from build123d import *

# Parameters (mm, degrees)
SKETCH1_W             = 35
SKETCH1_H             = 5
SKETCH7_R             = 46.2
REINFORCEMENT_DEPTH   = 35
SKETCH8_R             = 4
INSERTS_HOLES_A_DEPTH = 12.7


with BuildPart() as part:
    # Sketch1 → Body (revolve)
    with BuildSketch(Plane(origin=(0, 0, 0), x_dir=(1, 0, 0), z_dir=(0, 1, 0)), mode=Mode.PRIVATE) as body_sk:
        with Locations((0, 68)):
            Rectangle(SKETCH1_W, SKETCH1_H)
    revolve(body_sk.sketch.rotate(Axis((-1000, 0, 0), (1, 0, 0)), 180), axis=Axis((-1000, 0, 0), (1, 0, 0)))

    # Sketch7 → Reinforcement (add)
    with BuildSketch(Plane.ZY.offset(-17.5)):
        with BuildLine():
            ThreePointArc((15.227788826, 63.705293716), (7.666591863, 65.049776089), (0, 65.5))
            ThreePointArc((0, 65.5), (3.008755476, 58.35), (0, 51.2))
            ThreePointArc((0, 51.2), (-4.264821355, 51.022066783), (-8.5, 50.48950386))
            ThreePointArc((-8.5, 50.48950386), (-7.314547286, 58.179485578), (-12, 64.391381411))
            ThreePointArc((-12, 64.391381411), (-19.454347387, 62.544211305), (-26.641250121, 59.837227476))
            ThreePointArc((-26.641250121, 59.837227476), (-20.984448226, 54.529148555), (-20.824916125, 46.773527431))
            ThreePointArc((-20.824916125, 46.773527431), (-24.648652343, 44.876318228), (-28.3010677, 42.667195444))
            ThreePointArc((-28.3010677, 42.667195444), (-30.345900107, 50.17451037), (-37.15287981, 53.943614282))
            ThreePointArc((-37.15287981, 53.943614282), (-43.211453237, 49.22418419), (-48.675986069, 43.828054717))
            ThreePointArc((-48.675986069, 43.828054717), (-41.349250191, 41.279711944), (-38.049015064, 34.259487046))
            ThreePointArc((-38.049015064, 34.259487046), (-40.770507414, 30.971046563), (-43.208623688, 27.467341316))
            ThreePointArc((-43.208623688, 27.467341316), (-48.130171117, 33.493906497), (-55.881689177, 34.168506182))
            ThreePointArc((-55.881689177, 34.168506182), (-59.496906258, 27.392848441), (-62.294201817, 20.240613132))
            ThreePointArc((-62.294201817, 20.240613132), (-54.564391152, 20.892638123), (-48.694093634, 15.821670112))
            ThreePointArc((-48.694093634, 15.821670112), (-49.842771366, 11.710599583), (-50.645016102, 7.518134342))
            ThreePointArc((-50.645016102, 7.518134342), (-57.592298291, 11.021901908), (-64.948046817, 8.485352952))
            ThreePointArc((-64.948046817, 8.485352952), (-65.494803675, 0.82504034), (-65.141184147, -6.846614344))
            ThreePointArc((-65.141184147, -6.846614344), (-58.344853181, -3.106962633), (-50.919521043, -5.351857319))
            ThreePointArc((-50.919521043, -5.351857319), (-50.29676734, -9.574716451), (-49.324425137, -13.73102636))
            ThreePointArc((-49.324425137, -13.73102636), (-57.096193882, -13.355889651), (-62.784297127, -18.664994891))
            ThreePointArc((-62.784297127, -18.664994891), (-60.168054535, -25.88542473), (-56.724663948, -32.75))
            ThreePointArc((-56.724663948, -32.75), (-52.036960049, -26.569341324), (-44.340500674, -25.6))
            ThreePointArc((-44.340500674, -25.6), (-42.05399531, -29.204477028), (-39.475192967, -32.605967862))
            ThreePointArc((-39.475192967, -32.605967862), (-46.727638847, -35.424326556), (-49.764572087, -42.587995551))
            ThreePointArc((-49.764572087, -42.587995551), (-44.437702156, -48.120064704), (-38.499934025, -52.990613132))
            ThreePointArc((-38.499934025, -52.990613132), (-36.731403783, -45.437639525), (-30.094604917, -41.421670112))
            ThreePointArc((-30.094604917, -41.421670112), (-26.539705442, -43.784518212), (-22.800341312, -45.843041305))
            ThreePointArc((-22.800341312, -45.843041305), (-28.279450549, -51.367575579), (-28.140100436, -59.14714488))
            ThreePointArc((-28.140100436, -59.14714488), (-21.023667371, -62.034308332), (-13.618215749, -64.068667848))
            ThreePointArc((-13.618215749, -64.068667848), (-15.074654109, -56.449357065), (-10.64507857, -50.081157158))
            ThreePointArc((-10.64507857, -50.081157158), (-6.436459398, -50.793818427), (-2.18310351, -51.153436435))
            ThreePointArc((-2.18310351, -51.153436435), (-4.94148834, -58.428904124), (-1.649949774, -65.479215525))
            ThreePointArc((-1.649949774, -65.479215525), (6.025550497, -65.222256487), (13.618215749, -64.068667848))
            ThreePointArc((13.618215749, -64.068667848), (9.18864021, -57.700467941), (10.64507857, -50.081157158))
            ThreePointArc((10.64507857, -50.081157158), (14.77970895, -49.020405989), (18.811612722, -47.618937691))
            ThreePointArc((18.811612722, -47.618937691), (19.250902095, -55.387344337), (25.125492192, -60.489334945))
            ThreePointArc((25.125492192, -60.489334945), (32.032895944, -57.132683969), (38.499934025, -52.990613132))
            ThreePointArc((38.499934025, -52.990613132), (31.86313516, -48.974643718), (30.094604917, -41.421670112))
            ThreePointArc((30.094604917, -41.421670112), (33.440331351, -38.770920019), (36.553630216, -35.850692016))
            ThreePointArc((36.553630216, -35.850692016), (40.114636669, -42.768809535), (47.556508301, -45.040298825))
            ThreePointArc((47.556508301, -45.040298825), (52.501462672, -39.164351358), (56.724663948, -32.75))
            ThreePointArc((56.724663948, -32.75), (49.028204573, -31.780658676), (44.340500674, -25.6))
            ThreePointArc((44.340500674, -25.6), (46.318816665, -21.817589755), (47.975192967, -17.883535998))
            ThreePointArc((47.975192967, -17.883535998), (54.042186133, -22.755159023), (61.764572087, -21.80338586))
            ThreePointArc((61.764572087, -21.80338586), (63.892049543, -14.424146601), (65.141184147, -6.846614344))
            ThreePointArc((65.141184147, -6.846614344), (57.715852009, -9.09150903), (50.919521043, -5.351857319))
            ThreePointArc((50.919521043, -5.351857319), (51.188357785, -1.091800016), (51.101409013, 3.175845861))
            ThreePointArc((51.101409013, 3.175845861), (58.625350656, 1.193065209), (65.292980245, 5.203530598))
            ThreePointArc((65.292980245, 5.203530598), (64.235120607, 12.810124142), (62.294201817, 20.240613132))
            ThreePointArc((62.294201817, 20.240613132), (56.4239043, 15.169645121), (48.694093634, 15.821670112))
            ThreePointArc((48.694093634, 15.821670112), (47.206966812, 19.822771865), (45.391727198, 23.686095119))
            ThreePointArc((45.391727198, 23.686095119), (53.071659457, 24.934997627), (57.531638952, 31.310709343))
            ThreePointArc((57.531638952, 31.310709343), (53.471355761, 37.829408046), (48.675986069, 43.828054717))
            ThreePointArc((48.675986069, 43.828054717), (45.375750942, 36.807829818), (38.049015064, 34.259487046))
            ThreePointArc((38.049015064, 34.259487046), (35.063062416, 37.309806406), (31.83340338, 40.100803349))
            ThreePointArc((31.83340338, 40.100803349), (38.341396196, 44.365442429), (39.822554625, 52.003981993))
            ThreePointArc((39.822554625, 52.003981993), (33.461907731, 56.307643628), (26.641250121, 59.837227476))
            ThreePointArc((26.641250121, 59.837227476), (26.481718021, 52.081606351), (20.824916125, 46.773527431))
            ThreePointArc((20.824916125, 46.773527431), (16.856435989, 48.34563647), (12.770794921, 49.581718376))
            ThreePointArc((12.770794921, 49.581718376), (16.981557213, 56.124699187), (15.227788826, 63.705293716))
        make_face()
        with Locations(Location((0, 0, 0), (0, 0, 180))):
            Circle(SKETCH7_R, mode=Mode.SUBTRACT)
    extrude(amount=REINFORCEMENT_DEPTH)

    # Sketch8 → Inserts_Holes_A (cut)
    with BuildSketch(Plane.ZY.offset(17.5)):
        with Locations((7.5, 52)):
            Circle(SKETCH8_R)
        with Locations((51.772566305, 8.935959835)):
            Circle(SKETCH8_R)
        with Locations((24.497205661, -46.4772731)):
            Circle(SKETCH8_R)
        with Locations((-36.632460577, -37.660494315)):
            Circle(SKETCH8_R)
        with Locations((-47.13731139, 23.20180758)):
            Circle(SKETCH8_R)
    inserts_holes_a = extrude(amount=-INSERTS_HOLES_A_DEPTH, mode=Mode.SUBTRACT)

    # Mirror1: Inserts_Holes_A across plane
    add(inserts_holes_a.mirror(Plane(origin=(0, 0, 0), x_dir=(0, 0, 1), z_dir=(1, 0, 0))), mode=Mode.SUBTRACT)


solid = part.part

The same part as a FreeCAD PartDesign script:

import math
import FreeCAD as App
import Part
import Sketcher

V = App.Vector
Q = App.Units.Quantity

doc = App.newDocument("Part")
body = doc.addObject("PartDesign::Body", "Body")

# Sketch on XZ plane
sketch1 = doc.addObject("Sketcher::SketchObject", "Sketch")
body.addObject(sketch1)
sketch1.AttachmentSupport = (doc.XZ_Plane, [""])
sketch1.MapMode = "FlatFace"
sketch1.addGeometry(Part.LineSegment(V(-17.5, -70.5, 0), V(-17.5, -65.5, 0)), False)
sketch1.addGeometry(Part.LineSegment(V(-17.5, -65.5, 0), V(17.5, -65.5, 0)), False)
sketch1.addGeometry(Part.LineSegment(V(17.5, -65.5, 0), V(17.5, -70.5, 0)), False)
sketch1.addGeometry(Part.LineSegment(V(17.5, -70.5, 0), V(-17.5, -70.5, 0)), False)
sketch1.addConstraint(Sketcher.Constraint("Coincident", 0, 2, 1, 1))
sketch1.addConstraint(Sketcher.Constraint("Coincident", 1, 2, 2, 1))
sketch1.addConstraint(Sketcher.Constraint("Coincident", 2, 2, 3, 1))
sketch1.addConstraint(Sketcher.Constraint("Coincident", 3, 2, 0, 1))
sketch1.addConstraint(Sketcher.Constraint("Vertical", 0))
sketch1.addConstraint(Sketcher.Constraint("Horizontal", 1))
sketch1.addConstraint(Sketcher.Constraint("Vertical", 2))
sketch1.addConstraint(Sketcher.Constraint("Horizontal", 3))
sketch1.addConstraint(Sketcher.Constraint("DistanceX", 1, 1, 1, 2, Q("35 mm")))
sketch1.addConstraint(Sketcher.Constraint("DistanceY", 0, 1, 0, 2, Q("5 mm")))
sketch1.addConstraint(Sketcher.Constraint("DistanceX", 0, 2, -1, 1, Q("17.5 mm")))
sketch1.addConstraint(Sketcher.Constraint("DistanceY", 0, 2, -1, 1, Q("65.5 mm")))
revolution = doc.addObject("PartDesign::Revolution", "Revolution")
body.addObject(revolution)
revolution.Profile = sketch1
revolution.ReferenceAxis = (sketch1, ["H_Axis"])
revolution.Angle = 360

# Sketch on YZ plane
sketch2 = doc.addObject("Sketcher::SketchObject", "Sketch001")
body.addObject(sketch2)
sketch2.AttachmentSupport = (doc.YZ_Plane, [""])
sketch2.MapMode = "FlatFace"
sketch2.AttachmentOffset = App.Placement(V(0, 0, 17.5), App.Rotation())
sketch2.addGeometry(Part.ArcOfCircle(Part.Circle(V(0, 0, 0), V(0, 0, 1), 65.5), math.radians(0), math.radians(13.443438)), False)
sketch2.addGeometry(Part.ArcOfCircle(Part.Circle(V(58.35, -6.991245, 0), V(0, 0, 1), 10), math.radians(44.356801), math.radians(135.643199)), False)
sketch2.addGeometry(Part.ArcOfCircle(Part.Circle(V(0, 0, 0), V(0, 0, 1), 51.2), math.radians(-9.556239), math.radians(0)), False)
sketch2.addGeometry(Part.ArcOfCircle(Part.Circle(V(55.738028, -17.011933, 0), V(0, 0, 1), 10), math.radians(30.078977), math.radians(121.658306)), False)
sketch2.addGeometry(Part.ArcOfCircle(Part.Circle(V(0, 0, 0), V(0, 0, 1), 65.5), math.radians(-24), math.radians(-10.556562)), False)
sketch2.addGeometry(Part.ArcOfCircle(Part.Circle(V(50.461782, -30.119903, 0), V(0, 0, 1), 10), math.radians(20.356801), math.radians(111.643199)), False)
sketch2.addGeometry(Part.ArcOfCircle(Part.Circle(V(0, 0, 0), V(0, 0, 1), 51.2), math.radians(-33.556239), math.radians(-24)), False)
sketch2.addGeometry(Part.ArcOfCircle(Part.Circle(V(43.999846, -38.211872, 0), V(0, 0, 1), 10), math.radians(6.078977), math.radians(97.658306)), False)
sketch2.addGeometry(Part.ArcOfCircle(Part.Circle(V(0, 0, 0), V(0, 0, 1), 65.5), math.radians(-48), math.radians(-34.556562)), False)
sketch2.addGeometry(Part.ArcOfCircle(Part.Circle(V(33.848264, -48.040556, 0), V(0, 0, 1), 10), math.radians(-3.643199), math.radians(87.643199)), False)
sketch2.addGeometry(Part.ArcOfCircle(Part.Circle(V(0, 0, 0), V(0, 0, 1), 51.2), math.radians(-57.556239), math.radians(-48)), False)
sketch2.addGeometry(Part.ArcOfCircle(Part.Circle(V(24.653691, -52.804632, 0), V(0, 0, 1), 10), math.radians(-17.921023), math.radians(73.658306)), False)
sketch2.addGeometry(Part.ArcOfCircle(Part.Circle(V(0, 0, 0), V(0, 0, 1), 65.5), math.radians(-72), math.radians(-58.556562)), False)
sketch2.addGeometry(Part.ArcOfCircle(Part.Circle(V(11.382073, -57.654561, 0), V(0, 0, 1), 10), math.radians(-27.643199), math.radians(63.643199)), False)
sketch2.addGeometry(Part.ArcOfCircle(Part.Circle(V(0, 0, 0), V(0, 0, 1), 51.2), math.radians(-81.556239), math.radians(-72)), False)
sketch2.addGeometry(Part.ArcOfCircle(Part.Circle(V(1.044688, -58.266991, 0), V(0, 0, 1), 10), math.radians(-41.921023), math.radians(49.658306)), False)
sketch2.addGeometry(Part.ArcOfCircle(Part.Circle(V(0, 0, 0), V(0, 0, 1), 65.5), math.radians(-96), math.radians(-82.556562)), False)
sketch2.addGeometry(Part.ArcOfCircle(Part.Circle(V(-13.052182, -57.299569, 0), V(0, 0, 1), 10), math.radians(-51.643199), math.radians(39.643199)), False)
sketch2.addGeometry(Part.ArcOfCircle(Part.Circle(V(0, 0, 0), V(0, 0, 1), 51.2), math.radians(-105.556239), math.radians(-96)), False)
sketch2.addGeometry(Part.ArcOfCircle(Part.Circle(V(-22.74495, -53.654458, 0), V(0, 0, 1), 10), math.radians(-65.921023), math.radians(25.658306)), False)
sketch2.addGeometry(Part.ArcOfCircle(Part.Circle(V(0, 0, 0), V(0, 0, 1), 65.5), math.radians(-120), math.radians(-106.556562)), False)
sketch2.addGeometry(Part.ArcOfCircle(Part.Circle(V(-35.229595, -47.03696, 0), V(0, 0, 1), 10), math.radians(-75.643199), math.radians(15.643199)), False)
sketch2.addGeometry(Part.ArcOfCircle(Part.Circle(V(0, 0, 0), V(0, 0, 1), 51.2), math.radians(-129.556239), math.radians(-120)), False)
sketch2.addGeometry(Part.ArcOfCircle(Part.Circle(V(-42.60178, -39.764582, 0), V(0, 0, 1), 10), math.radians(-89.921023), math.radians(1.658306)), False)
sketch2.addGeometry(Part.ArcOfCircle(Part.Circle(V(0, 0, 0), V(0, 0, 1), 65.5), math.radians(-144), math.radians(-130.556562)), False)
sketch2.addGeometry(Part.ArcOfCircle(Part.Circle(V(-51.315492, -28.641234, 0), V(0, 0, 1), 10), math.radians(-99.643199), math.radians(-8.356801)), False)
sketch2.addGeometry(Part.ArcOfCircle(Part.Circle(V(0, 0, 0), V(0, 0, 1), 51.2), math.radians(-153.556239), math.radians(-144)), False)
sketch2.addGeometry(Part.ArcOfCircle(Part.Circle(V(-55.092375, -18.999048, 0), V(0, 0, 1), 10), math.radians(-113.921023), math.radians(-22.341694)), False)
sketch2.addGeometry(Part.ArcOfCircle(Part.Circle(V(0, 0, 0), V(0, 0, 1), 65.5), math.radians(-168), math.radians(-154.556562)), False)
sketch2.addGeometry(Part.ArcOfCircle(Part.Circle(V(-58.528474, -5.293178, 0), V(0, 0, 1), 10), math.radians(-123.643199), math.radians(-32.356801)), False)
sketch2.addGeometry(Part.ArcOfCircle(Part.Circle(V(0, 0, 0), V(0, 0, 1), 51.2), math.radians(-177.556239), math.radians(-168)), False)
sketch2.addGeometry(Part.ArcOfCircle(Part.Circle(V(-58.056998, 5.051594, 0), V(0, 0, 1), 10), math.radians(-137.921023), math.radians(-46.341694)), False)
sketch2.addGeometry(Part.ArcOfCircle(Part.Circle(V(0, 0, 0), V(0, 0, 1), 65.5), math.radians(168), math.radians(181.443438)), False)
sketch2.addGeometry(Part.ArcOfCircle(Part.Circle(V(-55.621351, 18.970116, 0), V(0, 0, 1), 10), math.radians(-147.643199), math.radians(-56.356801)), False)
sketch2.addGeometry(Part.ArcOfCircle(Part.Circle(V(0, 0, 0), V(0, 0, 1), 51.2), math.radians(158.443761), math.radians(168)), False)
sketch2.addGeometry(Part.ArcOfCircle(Part.Circle(V(-50.983038, 28.228769, 0), V(0, 0, 1), 10), math.radians(-161.921023), math.radians(-70.341694)), False)
sketch2.addGeometry(Part.ArcOfCircle(Part.Circle(V(0, 0, 0), V(0, 0, 1), 65.5), math.radians(144), math.radians(157.443438)), False)
sketch2.addGeometry(Part.ArcOfCircle(Part.Circle(V(-43.096791, 39.953305, 0), V(0, 0, 1), 10), math.radians(-171.643199), math.radians(-80.356801)), False)
sketch2.addGeometry(Part.ArcOfCircle(Part.Circle(V(0, 0, 0), V(0, 0, 1), 51.2), math.radians(134.443761), math.radians(144)), False)
sketch2.addGeometry(Part.ArcOfCircle(Part.Circle(V(-35.093648, 46.524933, 0), V(0, 0, 1), 10), math.radians(174.078977), math.radians(265.658306)), False)
sketch2.addGeometry(Part.ArcOfCircle(Part.Circle(V(0, 0, 0), V(0, 0, 1), 65.5), math.radians(120), math.radians(133.443438)), False)
sketch2.addGeometry(Part.ArcOfCircle(Part.Circle(V(-23.120405, 54.028205, 0), V(0, 0, 1), 10), math.radians(164.356801), math.radians(255.643199)), False)
sketch2.addGeometry(Part.ArcOfCircle(Part.Circle(V(0, 0, 0), V(0, 0, 1), 51.2), math.radians(110.443761), math.radians(120)), False)
sketch2.addGeometry(Part.ArcOfCircle(Part.Circle(V(-13.136248, 56.776514, 0), V(0, 0, 1), 10), math.radians(150.078977), math.radians(241.658306)), False)
sketch2.addGeometry(Part.ArcOfCircle(Part.Circle(V(0, 0, 0), V(0, 0, 1), 65.5), math.radians(96), math.radians(109.443438)), False)
sketch2.addGeometry(Part.ArcOfCircle(Part.Circle(V(0.85371, 58.761137, 0), V(0, 0, 1), 10), math.radians(140.356801), math.radians(231.643199)), False)
sketch2.addGeometry(Part.ArcOfCircle(Part.Circle(V(0, 0, 0), V(0, 0, 1), 51.2), math.radians(86.443761), math.radians(96)), False)
sketch2.addGeometry(Part.ArcOfCircle(Part.Circle(V(11.092529, 57.21092, 0), V(0, 0, 1), 10), math.radians(126.078977), math.radians(217.658306)), False)
sketch2.addGeometry(Part.ArcOfCircle(Part.Circle(V(0, 0, 0), V(0, 0, 1), 65.5), math.radians(72), math.radians(85.443438)), False)
sketch2.addGeometry(Part.ArcOfCircle(Part.Circle(V(24.68021, 53.333734, 0), V(0, 0, 1), 10), math.radians(116.356801), math.radians(207.643199)), False)
sketch2.addGeometry(Part.ArcOfCircle(Part.Circle(V(0, 0, 0), V(0, 0, 1), 51.2), math.radians(62.443761), math.radians(72)), False)
sketch2.addGeometry(Part.ArcOfCircle(Part.Circle(V(33.403307, 47.753038, 0), V(0, 0, 1), 10), math.radians(102.078977), math.radians(193.658306)), False)
sketch2.addGeometry(Part.ArcOfCircle(Part.Circle(V(0, 0, 0), V(0, 0, 1), 65.5), math.radians(48), math.radians(61.443438)), False)
sketch2.addGeometry(Part.ArcOfCircle(Part.Circle(V(44.239278, 38.684445, 0), V(0, 0, 1), 10), math.radians(92.356801), math.radians(183.643199)), False)
sketch2.addGeometry(Part.ArcOfCircle(Part.Circle(V(0, 0, 0), V(0, 0, 1), 51.2), math.radians(38.443761), math.radians(48)), False)
sketch2.addGeometry(Part.ArcOfCircle(Part.Circle(V(49.93835, 30.038222, 0), V(0, 0, 1), 10), math.radians(78.078977), math.radians(169.658306)), False)
sketch2.addGeometry(Part.ArcOfCircle(Part.Circle(V(0, 0, 0), V(0, 0, 1), 65.5), math.radians(24), math.radians(37.443438)), False)
sketch2.addGeometry(Part.ArcOfCircle(Part.Circle(V(56.148973, 17.346263, 0), V(0, 0, 1), 10), math.radians(68.356801), math.radians(159.643199)), False)
sketch2.addGeometry(Part.ArcOfCircle(Part.Circle(V(0, 0, 0), V(0, 0, 1), 51.2), math.radians(14.443761), math.radians(24)), False)
sketch2.addGeometry(Part.ArcOfCircle(Part.Circle(V(57.838598, 7.129524, 0), V(0, 0, 1), 10), math.radians(54.078977), math.radians(145.658306)), False)
sketch2.addGeometry(Part.Circle(V(0, 0, 0), V(0, 0, 1), 46.2), False)
sketch2.addConstraint(Sketcher.Constraint("Coincident", 0, 1, 1, 1))
sketch2.addConstraint(Sketcher.Constraint("Coincident", 1, 2, 2, 2))
sketch2.addConstraint(Sketcher.Constraint("Coincident", 2, 1, 3, 2))
sketch2.addConstraint(Sketcher.Constraint("Coincident", 3, 1, 4, 2))
sketch2.addConstraint(Sketcher.Constraint("Coincident", 4, 1, 5, 1))
sketch2.addConstraint(Sketcher.Constraint("Coincident", 5, 2, 6, 2))
sketch2.addConstraint(Sketcher.Constraint("Coincident", 6, 1, 7, 2))
sketch2.addConstraint(Sketcher.Constraint("Coincident", 7, 1, 8, 2))
sketch2.addConstraint(Sketcher.Constraint("Coincident", 8, 1, 9, 1))
sketch2.addConstraint(Sketcher.Constraint("Coincident", 9, 2, 10, 2))
sketch2.addConstraint(Sketcher.Constraint("Coincident", 10, 1, 11, 2))
sketch2.addConstraint(Sketcher.Constraint("Coincident", 11, 1, 12, 2))
sketch2.addConstraint(Sketcher.Constraint("Coincident", 12, 1, 13, 1))
sketch2.addConstraint(Sketcher.Constraint("Coincident", 13, 2, 14, 2))
sketch2.addConstraint(Sketcher.Constraint("Coincident", 14, 1, 15, 2))
sketch2.addConstraint(Sketcher.Constraint("Coincident", 15, 1, 16, 2))
sketch2.addConstraint(Sketcher.Constraint("Coincident", 16, 1, 17, 1))
sketch2.addConstraint(Sketcher.Constraint("Coincident", 17, 2, 18, 2))
sketch2.addConstraint(Sketcher.Constraint("Coincident", 18, 1, 19, 2))
sketch2.addConstraint(Sketcher.Constraint("Coincident", 19, 1, 20, 2))
sketch2.addConstraint(Sketcher.Constraint("Coincident", 20, 1, 21, 1))
sketch2.addConstraint(Sketcher.Constraint("Coincident", 21, 2, 22, 2))
sketch2.addConstraint(Sketcher.Constraint("Coincident", 22, 1, 23, 2))
sketch2.addConstraint(Sketcher.Constraint("Coincident", 23, 1, 24, 2))
sketch2.addConstraint(Sketcher.Constraint("Coincident", 24, 1, 25, 1))
sketch2.addConstraint(Sketcher.Constraint("Coincident", 25, 2, 26, 2))
sketch2.addConstraint(Sketcher.Constraint("Coincident", 26, 1, 27, 2))
sketch2.addConstraint(Sketcher.Constraint("Coincident", 27, 1, 28, 2))
sketch2.addConstraint(Sketcher.Constraint("Coincident", 28, 1, 29, 1))
sketch2.addConstraint(Sketcher.Constraint("Coincident", 29, 2, 30, 2))
sketch2.addConstraint(Sketcher.Constraint("Coincident", 30, 1, 31, 2))
sketch2.addConstraint(Sketcher.Constraint("Coincident", 31, 1, 32, 2))
sketch2.addConstraint(Sketcher.Constraint("Coincident", 32, 1, 33, 1))
sketch2.addConstraint(Sketcher.Constraint("Coincident", 33, 2, 34, 2))
sketch2.addConstraint(Sketcher.Constraint("Coincident", 34, 1, 35, 2))
sketch2.addConstraint(Sketcher.Constraint("Coincident", 35, 1, 36, 2))
sketch2.addConstraint(Sketcher.Constraint("Coincident", 36, 1, 37, 1))
sketch2.addConstraint(Sketcher.Constraint("Coincident", 37, 2, 38, 2))
sketch2.addConstraint(Sketcher.Constraint("Coincident", 38, 1, 39, 2))
sketch2.addConstraint(Sketcher.Constraint("Coincident", 39, 1, 40, 2))
sketch2.addConstraint(Sketcher.Constraint("Coincident", 40, 1, 41, 1))
sketch2.addConstraint(Sketcher.Constraint("Coincident", 41, 2, 42, 2))
sketch2.addConstraint(Sketcher.Constraint("Coincident", 42, 1, 43, 2))
sketch2.addConstraint(Sketcher.Constraint("Coincident", 43, 1, 44, 2))
sketch2.addConstraint(Sketcher.Constraint("Coincident", 44, 1, 45, 1))
sketch2.addConstraint(Sketcher.Constraint("Coincident", 45, 2, 46, 2))
sketch2.addConstraint(Sketcher.Constraint("Coincident", 46, 1, 47, 2))
sketch2.addConstraint(Sketcher.Constraint("Coincident", 47, 1, 48, 2))
sketch2.addConstraint(Sketcher.Constraint("Coincident", 48, 1, 49, 1))
sketch2.addConstraint(Sketcher.Constraint("Coincident", 49, 2, 50, 2))
sketch2.addConstraint(Sketcher.Constraint("Coincident", 50, 1, 51, 2))
sketch2.addConstraint(Sketcher.Constraint("Coincident", 51, 1, 52, 2))
sketch2.addConstraint(Sketcher.Constraint("Coincident", 52, 1, 53, 1))
sketch2.addConstraint(Sketcher.Constraint("Coincident", 53, 2, 54, 2))
sketch2.addConstraint(Sketcher.Constraint("Coincident", 54, 1, 55, 2))
sketch2.addConstraint(Sketcher.Constraint("Coincident", 55, 1, 56, 2))
sketch2.addConstraint(Sketcher.Constraint("Coincident", 56, 1, 57, 1))
sketch2.addConstraint(Sketcher.Constraint("Coincident", 57, 2, 58, 2))
sketch2.addConstraint(Sketcher.Constraint("Coincident", 58, 1, 59, 2))
sketch2.addConstraint(Sketcher.Constraint("Coincident", 59, 1, 0, 2))
sketch2.addConstraint(Sketcher.Constraint("Coincident", 0, 3, -1, 1))
sketch2.addConstraint(Sketcher.Constraint("Coincident", 2, 3, -1, 1))
sketch2.addConstraint(Sketcher.Constraint("Coincident", 4, 3, -1, 1))
sketch2.addConstraint(Sketcher.Constraint("Coincident", 6, 3, -1, 1))
sketch2.addConstraint(Sketcher.Constraint("Coincident", 8, 3, -1, 1))
sketch2.addConstraint(Sketcher.Constraint("Coincident", 10, 3, -1, 1))
sketch2.addConstraint(Sketcher.Constraint("Coincident", 12, 3, -1, 1))
sketch2.addConstraint(Sketcher.Constraint("Coincident", 14, 3, -1, 1))
sketch2.addConstraint(Sketcher.Constraint("Coincident", 16, 3, -1, 1))
sketch2.addConstraint(Sketcher.Constraint("Coincident", 18, 3, -1, 1))
sketch2.addConstraint(Sketcher.Constraint("Coincident", 20, 3, -1, 1))
sketch2.addConstraint(Sketcher.Constraint("Coincident", 22, 3, -1, 1))
sketch2.addConstraint(Sketcher.Constraint("Coincident", 24, 3, -1, 1))
sketch2.addConstraint(Sketcher.Constraint("Coincident", 26, 3, -1, 1))
sketch2.addConstraint(Sketcher.Constraint("Coincident", 28, 3, -1, 1))
sketch2.addConstraint(Sketcher.Constraint("Coincident", 30, 3, -1, 1))
sketch2.addConstraint(Sketcher.Constraint("Coincident", 32, 3, -1, 1))
sketch2.addConstraint(Sketcher.Constraint("Coincident", 34, 3, -1, 1))
sketch2.addConstraint(Sketcher.Constraint("Coincident", 36, 3, -1, 1))
sketch2.addConstraint(Sketcher.Constraint("Coincident", 38, 3, -1, 1))
sketch2.addConstraint(Sketcher.Constraint("Coincident", 40, 3, -1, 1))
sketch2.addConstraint(Sketcher.Constraint("Coincident", 42, 3, -1, 1))
sketch2.addConstraint(Sketcher.Constraint("Coincident", 44, 3, -1, 1))
sketch2.addConstraint(Sketcher.Constraint("Coincident", 46, 3, -1, 1))
sketch2.addConstraint(Sketcher.Constraint("Coincident", 48, 3, -1, 1))
sketch2.addConstraint(Sketcher.Constraint("Coincident", 50, 3, -1, 1))
sketch2.addConstraint(Sketcher.Constraint("Coincident", 52, 3, -1, 1))
sketch2.addConstraint(Sketcher.Constraint("Coincident", 54, 3, -1, 1))
sketch2.addConstraint(Sketcher.Constraint("Coincident", 56, 3, -1, 1))
sketch2.addConstraint(Sketcher.Constraint("Coincident", 58, 3, -1, 1))
sketch2.addConstraint(Sketcher.Constraint("Coincident", 60, 3, -1, 1))
sketch2.addConstraint(Sketcher.Constraint("Equal", 1, 3))
sketch2.addConstraint(Sketcher.Constraint("Equal", 0, 4))
sketch2.addConstraint(Sketcher.Constraint("Equal", 3, 5))
sketch2.addConstraint(Sketcher.Constraint("Equal", 2, 6))
sketch2.addConstraint(Sketcher.Constraint("Equal", 5, 7))
sketch2.addConstraint(Sketcher.Constraint("Equal", 4, 8))
sketch2.addConstraint(Sketcher.Constraint("Equal", 7, 9))
sketch2.addConstraint(Sketcher.Constraint("Equal", 6, 10))
sketch2.addConstraint(Sketcher.Constraint("Equal", 9, 11))
sketch2.addConstraint(Sketcher.Constraint("Equal", 8, 12))
sketch2.addConstraint(Sketcher.Constraint("Equal", 11, 13))
sketch2.addConstraint(Sketcher.Constraint("Equal", 10, 14))
sketch2.addConstraint(Sketcher.Constraint("Equal", 13, 15))
sketch2.addConstraint(Sketcher.Constraint("Equal", 12, 16))
sketch2.addConstraint(Sketcher.Constraint("Equal", 15, 17))
sketch2.addConstraint(Sketcher.Constraint("Equal", 14, 18))
sketch2.addConstraint(Sketcher.Constraint("Equal", 17, 19))
sketch2.addConstraint(Sketcher.Constraint("Equal", 16, 20))
sketch2.addConstraint(Sketcher.Constraint("Equal", 19, 21))
sketch2.addConstraint(Sketcher.Constraint("Equal", 18, 22))
sketch2.addConstraint(Sketcher.Constraint("Equal", 21, 23))
sketch2.addConstraint(Sketcher.Constraint("Equal", 20, 24))
sketch2.addConstraint(Sketcher.Constraint("Equal", 23, 25))
sketch2.addConstraint(Sketcher.Constraint("Equal", 22, 26))
sketch2.addConstraint(Sketcher.Constraint("Equal", 25, 27))
sketch2.addConstraint(Sketcher.Constraint("Equal", 24, 28))
sketch2.addConstraint(Sketcher.Constraint("Equal", 27, 29))
sketch2.addConstraint(Sketcher.Constraint("Equal", 26, 30))
sketch2.addConstraint(Sketcher.Constraint("Equal", 29, 31))
sketch2.addConstraint(Sketcher.Constraint("Equal", 28, 32))
sketch2.addConstraint(Sketcher.Constraint("Equal", 31, 33))
sketch2.addConstraint(Sketcher.Constraint("Equal", 30, 34))
sketch2.addConstraint(Sketcher.Constraint("Equal", 33, 35))
sketch2.addConstraint(Sketcher.Constraint("Equal", 32, 36))
sketch2.addConstraint(Sketcher.Constraint("Equal", 35, 37))
sketch2.addConstraint(Sketcher.Constraint("Equal", 34, 38))
sketch2.addConstraint(Sketcher.Constraint("Equal", 37, 39))
sketch2.addConstraint(Sketcher.Constraint("Equal", 36, 40))
sketch2.addConstraint(Sketcher.Constraint("Equal", 39, 41))
sketch2.addConstraint(Sketcher.Constraint("Equal", 38, 42))
sketch2.addConstraint(Sketcher.Constraint("Equal", 41, 43))
sketch2.addConstraint(Sketcher.Constraint("Equal", 40, 44))
sketch2.addConstraint(Sketcher.Constraint("Equal", 43, 45))
sketch2.addConstraint(Sketcher.Constraint("Equal", 42, 46))
sketch2.addConstraint(Sketcher.Constraint("Equal", 45, 47))
sketch2.addConstraint(Sketcher.Constraint("Equal", 44, 48))
sketch2.addConstraint(Sketcher.Constraint("Equal", 47, 49))
sketch2.addConstraint(Sketcher.Constraint("Equal", 46, 50))
sketch2.addConstraint(Sketcher.Constraint("Equal", 49, 51))
sketch2.addConstraint(Sketcher.Constraint("Equal", 48, 52))
sketch2.addConstraint(Sketcher.Constraint("Equal", 51, 53))
sketch2.addConstraint(Sketcher.Constraint("Equal", 50, 54))
sketch2.addConstraint(Sketcher.Constraint("Equal", 53, 55))
sketch2.addConstraint(Sketcher.Constraint("Equal", 52, 56))
sketch2.addConstraint(Sketcher.Constraint("Equal", 55, 57))
sketch2.addConstraint(Sketcher.Constraint("Equal", 54, 58))
sketch2.addConstraint(Sketcher.Constraint("Equal", 57, 59))
sketch2.addConstraint(Sketcher.Constraint("PointOnObject", 0, 1, -1))
sketch2.addConstraint(Sketcher.Constraint("PointOnObject", 1, 2, -1))
sketch2.addConstraint(Sketcher.Constraint("Vertical", 28, 1, 32, 1))
sketch2.addConstraint(Sketcher.Constraint("Vertical", 29, 2, 33, 2))
sketch2.addConstraint(Sketcher.Constraint("Vertical", 24, 1, 36, 1))
sketch2.addConstraint(Sketcher.Constraint("Vertical", 25, 2, 37, 2))
sketch2.addConstraint(Sketcher.Constraint("Vertical", 20, 1, 40, 1))
sketch2.addConstraint(Sketcher.Constraint("Vertical", 21, 2, 41, 2))
sketch2.addConstraint(Sketcher.Constraint("Vertical", 16, 1, 44, 1))
sketch2.addConstraint(Sketcher.Constraint("Vertical", 17, 2, 45, 2))
sketch2.addConstraint(Sketcher.Constraint("Vertical", 12, 1, 48, 1))
sketch2.addConstraint(Sketcher.Constraint("Vertical", 13, 2, 49, 2))
sketch2.addConstraint(Sketcher.Constraint("Vertical", 8, 1, 52, 1))
sketch2.addConstraint(Sketcher.Constraint("Vertical", 9, 2, 53, 2))
sketch2.addConstraint(Sketcher.Constraint("Vertical", 4, 1, 56, 1))
sketch2.addConstraint(Sketcher.Constraint("Vertical", 5, 2, 57, 2))
sketch2.addConstraint(Sketcher.Constraint("Radius", 1, Q("10 mm")))
sketch2.addConstraint(Sketcher.Constraint("Diameter", 60, Q("92.4 mm")))
sketch2.addConstraint(Sketcher.Constraint("Radius", 0, Q("65.5 mm")))
sketch2.addConstraint(Sketcher.Constraint("Radius", 2, Q("51.2 mm")))
sketch2.addConstraint(Sketcher.Constraint("DistanceY", 3, 1, -1, 1, Q("12 mm")))
sketch2.addConstraint(Sketcher.Constraint("DistanceY", 2, 1, -1, 1, Q("8.5 mm")))
sketch2.addConstraint(Sketcher.Constraint("DistanceX", 21, 2, -1, 1, Q("25.6 mm")))
sketch2.addConstraint(Sketcher.Constraint("DistanceX", 20, 1, -1, 1, Q("32.75 mm")))
sketch2.addConstraint(Sketcher.Constraint("DistanceX", -1, 1, 59, 3, Q("57.838598 mm")))
sketch2.addConstraint(Sketcher.Constraint("DistanceY", 12, 1, -1, 1, Q("62.294202 mm")))
sketch2.addConstraint(Sketcher.Constraint("DistanceY", 27, 1, -1, 1, Q("28.1401 mm")))
sketch2.addConstraint(Sketcher.Constraint("DistanceX", 39, 1, -1, 1, Q("45.040299 mm")))
sketch2.addConstraint(Sketcher.Constraint("DistanceX", -1, 1, 11, 3, Q("24.653691 mm")))
sketch2.addConstraint(Sketcher.Constraint("DistanceY", 11, 3, -1, 1, Q("52.804632 mm")))
sketch2.addConstraint(Sketcher.Constraint("DistanceY", 13, 3, -1, 1, Q("57.654561 mm")))
sketch2.addConstraint(Sketcher.Constraint("DistanceX", -1, 1, 15, 3, Q("1.044688 mm")))
sketch2.addConstraint(Sketcher.Constraint("DistanceY", 15, 3, -1, 1, Q("58.266991 mm")))
sketch2.addConstraint(Sketcher.Constraint("DistanceX", 17, 3, -1, 1, Q("13.052182 mm")))
sketch2.addConstraint(Sketcher.Constraint("DistanceY", 17, 3, -1, 1, Q("57.299569 mm")))
sketch2.addConstraint(Sketcher.Constraint("DistanceX", 19, 3, -1, 1, Q("22.74495 mm")))
sketch2.addConstraint(Sketcher.Constraint("DistanceX", 23, 3, -1, 1, Q("42.60178 mm")))
sketch2.addConstraint(Sketcher.Constraint("DistanceY", 23, 3, -1, 1, Q("39.764582 mm")))
sketch2.addConstraint(Sketcher.Constraint("DistanceY", 27, 3, -1, 1, Q("18.999048 mm")))
sketch2.addConstraint(Sketcher.Constraint("DistanceY", 29, 3, -1, 1, Q("5.293178 mm")))
sketch2.addConstraint(Sketcher.Constraint("DistanceX", 33, 3, -1, 1, Q("55.621351 mm")))
sketch2.addConstraint(Sketcher.Constraint("DistanceX", 35, 3, -1, 1, Q("50.983038 mm")))
sketch2.addConstraint(Sketcher.Constraint("DistanceY", -1, 1, 35, 3, Q("28.228769 mm")))
sketch2.addConstraint(Sketcher.Constraint("DistanceX", 37, 3, -1, 1, Q("43.096791 mm")))
sketch2.addConstraint(Sketcher.Constraint("DistanceX", 39, 3, -1, 1, Q("35.093648 mm")))
sketch2.addConstraint(Sketcher.Constraint("DistanceX", -1, 1, 47, 3, Q("11.092529 mm")))
sketch2.addConstraint(Sketcher.Constraint("DistanceY", -1, 1, 47, 3, Q("57.21092 mm")))
sketch2.addConstraint(Sketcher.Constraint("DistanceY", -1, 1, 51, 3, Q("47.753038 mm")))
sketch2.addConstraint(Sketcher.Constraint("DistanceX", -1, 1, 53, 3, Q("44.239278 mm")))
sketch2.addConstraint(Sketcher.Constraint("DistanceX", -1, 1, 55, 3, Q("49.93835 mm")))
sketch2.addConstraint(Sketcher.Constraint("DistanceY", 4, 1, -1, 1, Q("26.64125 mm")))
sketch2.addConstraint(Sketcher.Constraint("DistanceY", 7, 1, -1, 1, Q("37.15288 mm")))
sketch2.addConstraint(Sketcher.Constraint("DistanceX", 25, 2, -1, 1, Q("41.42167 mm")))
sketch2.addConstraint(Sketcher.Constraint("DistanceY", 31, 1, -1, 1, Q("1.64995 mm")))
sketch2.addConstraint(Sketcher.Constraint("DistanceX", -1, 1, 51, 1, Q("31.310709 mm")))
sketch2.addConstraint(Sketcher.Constraint("DistanceX", -1, 1, 55, 1, Q("52.003982 mm")))
sketch2.addConstraint(Sketcher.Constraint("DistanceX", -1, 1, 58, 1, Q("49.581718 mm")))
sketch2.addConstraint(Sketcher.Constraint("DistanceX", -1, 1, 5, 3, Q("50.461782 mm")))
sketch2.addConstraint(Sketcher.Constraint("DistanceX", -1, 1, 7, 3, Q("43.999846 mm")))
sketch2.addConstraint(Sketcher.Constraint("DistanceX", -1, 1, 9, 3, Q("33.848264 mm")))
sketch2.addConstraint(Sketcher.Constraint("DistanceY", 19, 3, -1, 1, Q("53.654458 mm")))
sketch2.addConstraint(Sketcher.Constraint("DistanceX", 31, 3, -1, 1, Q("58.056998 mm")))
sketch2.addConstraint(Sketcher.Constraint("DistanceX", 43, 3, -1, 1, Q("13.136248 mm")))
sketch2.addConstraint(Sketcher.Constraint("DistanceY", -1, 1, 43, 3, Q("56.776514 mm")))
pad1 = doc.addObject("PartDesign::Pad", "Pad")
body.addObject(pad1)
pad1.Profile = sketch2
pad1.Length = 35
pad1.Reversed = True

# Sketch on YZ plane
sketch3 = doc.addObject("Sketcher::SketchObject", "Sketch002")
body.addObject(sketch3)
sketch3.AttachmentSupport = (doc.YZ_Plane, [""])
sketch3.MapMode = "FlatFace"
sketch3.AttachmentOffset = App.Placement(V(0, 0, -17.5), App.Rotation())
sketch3.addGeometry(Part.Circle(V(52, 7.5, 0), V(0, 0, 1), 4), False)
sketch3.addGeometry(Part.Circle(V(8.93596, 51.772566, 0), V(0, 0, 1), 4), False)
sketch3.addGeometry(Part.Circle(V(-46.477273, 24.497206, 0), V(0, 0, 1), 4), False)
sketch3.addGeometry(Part.Circle(V(-37.660494, -36.632461, 0), V(0, 0, 1), 4), False)
sketch3.addGeometry(Part.Circle(V(23.201808, -47.137311, 0), V(0, 0, 1), 4), False)
sketch3.addConstraint(Sketcher.Constraint("Equal", 0, 1))
sketch3.addConstraint(Sketcher.Constraint("Equal", 1, 2))
sketch3.addConstraint(Sketcher.Constraint("Equal", 2, 3))
sketch3.addConstraint(Sketcher.Constraint("Equal", 3, 4))
sketch3.addConstraint(Sketcher.Constraint("Diameter", 0, Q("8 mm")))
sketch3.addConstraint(Sketcher.Constraint("DistanceX", -1, 1, 0, 3, Q("52 mm")))
sketch3.addConstraint(Sketcher.Constraint("DistanceY", -1, 1, 0, 3, Q("7.5 mm")))
sketch3.addConstraint(Sketcher.Constraint("DistanceX", 3, 3, 4, 3, Q("60.862302 mm")))
sketch3.addConstraint(Sketcher.Constraint("DistanceX", -1, 1, 1, 3, Q("8.93596 mm")))
sketch3.addConstraint(Sketcher.Constraint("DistanceY", 3, 3, -1, 1, Q("36.632461 mm")))
sketch3.addConstraint(Sketcher.Constraint("DistanceY", 4, 3, -1, 1, Q("47.137311 mm")))
sketch3.addConstraint(Sketcher.Constraint("DistanceY", 2, 3, 1, 3, Q("27.275361 mm")))
sketch3.addConstraint(Sketcher.Constraint("DistanceX", 2, 3, 3, 3, Q("8.816779 mm")))
sketch3.addConstraint(Sketcher.Constraint("DistanceY", -1, 1, 1, 3, Q("51.772566 mm")))
sketch3.addConstraint(Sketcher.Constraint("DistanceX", 2, 3, -1, 1, Q("46.477273 mm")))
pocket1 = doc.addObject("PartDesign::Pocket", "Pocket")
body.addObject(pocket1)
pocket1.Profile = sketch3
pocket1.Length = 12.7
pocket1.Reversed = True
doc.recompute()

mirrored = doc.addObject("PartDesign::Mirrored", "Mirrored")
body.addObject(mirrored)
mirrored.Originals = [pocket1]
mirrored.MirrorPlane = (doc.YZ_Plane, [""])
body.Tip = mirrored

doc.recompute()
